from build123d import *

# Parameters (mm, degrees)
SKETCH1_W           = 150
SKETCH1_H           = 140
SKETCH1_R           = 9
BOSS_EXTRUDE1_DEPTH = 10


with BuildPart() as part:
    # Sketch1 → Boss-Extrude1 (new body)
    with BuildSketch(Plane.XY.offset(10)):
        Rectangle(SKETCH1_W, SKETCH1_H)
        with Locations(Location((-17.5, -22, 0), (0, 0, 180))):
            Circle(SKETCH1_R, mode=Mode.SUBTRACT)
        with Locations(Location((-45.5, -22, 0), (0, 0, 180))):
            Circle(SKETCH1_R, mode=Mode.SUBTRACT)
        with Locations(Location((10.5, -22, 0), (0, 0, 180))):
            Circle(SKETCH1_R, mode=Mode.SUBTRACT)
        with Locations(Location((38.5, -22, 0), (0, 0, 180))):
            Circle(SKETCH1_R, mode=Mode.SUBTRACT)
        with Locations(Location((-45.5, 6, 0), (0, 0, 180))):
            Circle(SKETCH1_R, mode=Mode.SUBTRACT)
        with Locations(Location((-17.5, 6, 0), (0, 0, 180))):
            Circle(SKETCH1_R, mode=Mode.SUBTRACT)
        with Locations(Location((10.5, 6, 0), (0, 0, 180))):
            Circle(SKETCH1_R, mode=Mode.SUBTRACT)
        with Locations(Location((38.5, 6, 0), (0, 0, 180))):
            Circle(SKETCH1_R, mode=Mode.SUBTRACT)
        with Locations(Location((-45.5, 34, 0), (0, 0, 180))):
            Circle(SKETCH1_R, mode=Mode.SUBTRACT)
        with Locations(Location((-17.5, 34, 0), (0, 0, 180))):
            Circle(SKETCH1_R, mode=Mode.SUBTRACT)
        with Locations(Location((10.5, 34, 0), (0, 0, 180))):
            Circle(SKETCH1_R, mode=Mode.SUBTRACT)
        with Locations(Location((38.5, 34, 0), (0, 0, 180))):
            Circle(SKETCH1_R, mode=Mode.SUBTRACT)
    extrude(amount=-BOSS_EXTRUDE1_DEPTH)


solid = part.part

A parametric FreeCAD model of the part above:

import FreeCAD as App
import Part
import Sketcher

doc = App.newDocument("Part")
params = doc.addObject("Spreadsheet::Sheet", "Params")
for row, (alias, value) in enumerate([
    ("sketch1_diameter", "18 mm"),
    ("sketch1_width", "150 mm"),
    ("sketch1_height", "140 mm"),
    ("pad1_length", "10 mm"),
], start=1):
    params.set(f"A{row}", alias)
    params.set(f"B{row}", "=" + value)
    params.setAlias(f"B{row}", alias)

body = doc.addObject("PartDesign::Body", "Body")

sketch1 = body.newObject("Sketcher::SketchObject", "Sketch")
sketch1.AttachmentSupport = (doc.getObject("XY_Plane"), [""])
sketch1.MapMode = "FlatFace"
sketch1.AttachmentOffset = App.Placement(App.Vector(0, 0, 10), App.Rotation())
sketch1.addGeometry([
    Part.LineSegment(App.Vector(-75, 70, 0), App.Vector(-75, -70, 0)),
    Part.LineSegment(App.Vector(-75, -70, 0), App.Vector(75, -70, 0)),
    Part.LineSegment(App.Vector(75, -70, 0), App.Vector(75, 70, 0)),
    Part.LineSegment(App.Vector(75, 70, 0), App.Vector(-75, 70, 0)),
    Part.Circle(App.Vector(-46, -22, 0), App.Vector(0, 0, 1), 9),
    Part.Circle(App.Vector(-18, -22, 0), App.Vector(0, 0, 1), 9),
    Part.Circle(App.Vector(10, -22, 0), App.Vector(0, 0, 1), 9),
    Part.Circle(App.Vector(38, -22, 0), App.Vector(0, 0, 1), 9),
    Part.Circle(App.Vector(-46, 6, 0), App.Vector(0, 0, 1), 9),
    Part.Circle(App.Vector(-18, 6, 0), App.Vector(0, 0, 1), 9),
    Part.Circle(App.Vector(-46, 34, 0), App.Vector(0, 0, 1), 9),
    Part.Circle(App.Vector(-18, 34, 0), App.Vector(0, 0, 1), 9),
    Part.Circle(App.Vector(10, 6, 0), App.Vector(0, 0, 1), 9),
    Part.Circle(App.Vector(38, 6, 0), App.Vector(0, 0, 1), 9),
    Part.Circle(App.Vector(10, 34, 0), App.Vector(0, 0, 1), 9),
    Part.Circle(App.Vector(38, 34, 0), App.Vector(0, 0, 1), 9),
], False)
sketch1.addConstraint([
    Sketcher.Constraint("Coincident", 0, 2, 1, 1),
    Sketcher.Constraint("Coincident", 1, 2, 2, 1),
    Sketcher.Constraint("Coincident", 2, 2, 3, 1),
    Sketcher.Constraint("Coincident", 3, 2, 0, 1),
    Sketcher.Constraint("Vertical", 0),
    Sketcher.Constraint("Horizontal", 1),
    Sketcher.Constraint("Vertical", 2),
    Sketcher.Constraint("Horizontal", 3),
    Sketcher.Constraint("Equal", 4, 5),
    Sketcher.Constraint("Equal", 5, 6),
    Sketcher.Constraint("Equal", 6, 7),
    Sketcher.Constraint("Equal", 7, 8),
    Sketcher.Constraint("Equal", 8, 9),
    Sketcher.Constraint("Equal", 9, 10),
    Sketcher.Constraint("Equal", 10, 11),
    Sketcher.Constraint("Equal", 11, 12),
    Sketcher.Constraint("Equal", 12, 13),
    Sketcher.Constraint("Equal", 13, 14),
    Sketcher.Constraint("Equal", 14, 15),
    Sketcher.Constraint("Symmetric", 0, 2, 2, 2, -1, 1),
    Sketcher.Constraint("Horizontal", 4, 3, 5, 3),
    Sketcher.Constraint("Horizontal", 5, 3, 6, 3),
    Sketcher.Constraint("Horizontal", 6, 3, 7, 3),
    Sketcher.Constraint("Horizontal", 8, 3, 9, 3),
    Sketcher.Constraint("Horizontal", 10, 3, 11, 3),
    Sketcher.Constraint("Horizontal", 9, 3, 12, 3),
    Sketcher.Constraint("Horizontal", 12, 3, 13, 3),
    Sketcher.Constraint("Horizontal", 11, 3, 14, 3),
    Sketcher.Constraint("Horizontal", 14, 3, 15, 3),
    Sketcher.Constraint("Vertical", 4, 3, 8, 3),
    Sketcher.Constraint("Vertical", 5, 3, 9, 3),
    Sketcher.Constraint("Vertical", 8, 3, 10, 3),
    Sketcher.Constraint("Vertical", 9, 3, 11, 3),
    Sketcher.Constraint("Vertical", 6, 3, 12, 3),
    Sketcher.Constraint("Vertical", 7, 3, 13, 3),
    Sketcher.Constraint("Vertical", 12, 3, 14, 3),
    Sketcher.Constraint("Vertical", 13, 3, 15, 3),
    Sketcher.Constraint("Diameter", 4, 18.0),
    Sketcher.Constraint("DistanceX", 1, 1, 1, 2, 150.0),
    Sketcher.Constraint("DistanceY", 0, 2, 0, 1, 140.0),
    Sketcher.Constraint("DistanceY", 4, 3, -1, 1, 22.0),
    Sketcher.Constraint("DistanceY", -1, 1, 8, 3, 6.0),
    Sketcher.Constraint("DistanceY", -1, 1, 10, 3, 34.0),
    Sketcher.Constraint("DistanceX", 4, 3, 5, 3, 28.0),
    Sketcher.Constraint("DistanceX", 5, 3, 6, 3, 28.0),
    Sketcher.Constraint("DistanceX", 6, 3, 7, 3, 28.0),
    Sketcher.Constraint("DistanceX", 4, 3, -1, 1, 45.5),
])
sketch1.setExpression("Constraints[37]", "Params.sketch1_diameter")
sketch1.setExpression("Constraints[38]", "Params.sketch1_width")
sketch1.setExpression("Constraints[39]", "Params.sketch1_height")
pad1 = body.newObject("PartDesign::Pad", "Pad")
pad1.Profile = sketch1
pad1.setExpression("Length", "Params.pad1_length")
pad1.Reversed = True

doc.recompute()
